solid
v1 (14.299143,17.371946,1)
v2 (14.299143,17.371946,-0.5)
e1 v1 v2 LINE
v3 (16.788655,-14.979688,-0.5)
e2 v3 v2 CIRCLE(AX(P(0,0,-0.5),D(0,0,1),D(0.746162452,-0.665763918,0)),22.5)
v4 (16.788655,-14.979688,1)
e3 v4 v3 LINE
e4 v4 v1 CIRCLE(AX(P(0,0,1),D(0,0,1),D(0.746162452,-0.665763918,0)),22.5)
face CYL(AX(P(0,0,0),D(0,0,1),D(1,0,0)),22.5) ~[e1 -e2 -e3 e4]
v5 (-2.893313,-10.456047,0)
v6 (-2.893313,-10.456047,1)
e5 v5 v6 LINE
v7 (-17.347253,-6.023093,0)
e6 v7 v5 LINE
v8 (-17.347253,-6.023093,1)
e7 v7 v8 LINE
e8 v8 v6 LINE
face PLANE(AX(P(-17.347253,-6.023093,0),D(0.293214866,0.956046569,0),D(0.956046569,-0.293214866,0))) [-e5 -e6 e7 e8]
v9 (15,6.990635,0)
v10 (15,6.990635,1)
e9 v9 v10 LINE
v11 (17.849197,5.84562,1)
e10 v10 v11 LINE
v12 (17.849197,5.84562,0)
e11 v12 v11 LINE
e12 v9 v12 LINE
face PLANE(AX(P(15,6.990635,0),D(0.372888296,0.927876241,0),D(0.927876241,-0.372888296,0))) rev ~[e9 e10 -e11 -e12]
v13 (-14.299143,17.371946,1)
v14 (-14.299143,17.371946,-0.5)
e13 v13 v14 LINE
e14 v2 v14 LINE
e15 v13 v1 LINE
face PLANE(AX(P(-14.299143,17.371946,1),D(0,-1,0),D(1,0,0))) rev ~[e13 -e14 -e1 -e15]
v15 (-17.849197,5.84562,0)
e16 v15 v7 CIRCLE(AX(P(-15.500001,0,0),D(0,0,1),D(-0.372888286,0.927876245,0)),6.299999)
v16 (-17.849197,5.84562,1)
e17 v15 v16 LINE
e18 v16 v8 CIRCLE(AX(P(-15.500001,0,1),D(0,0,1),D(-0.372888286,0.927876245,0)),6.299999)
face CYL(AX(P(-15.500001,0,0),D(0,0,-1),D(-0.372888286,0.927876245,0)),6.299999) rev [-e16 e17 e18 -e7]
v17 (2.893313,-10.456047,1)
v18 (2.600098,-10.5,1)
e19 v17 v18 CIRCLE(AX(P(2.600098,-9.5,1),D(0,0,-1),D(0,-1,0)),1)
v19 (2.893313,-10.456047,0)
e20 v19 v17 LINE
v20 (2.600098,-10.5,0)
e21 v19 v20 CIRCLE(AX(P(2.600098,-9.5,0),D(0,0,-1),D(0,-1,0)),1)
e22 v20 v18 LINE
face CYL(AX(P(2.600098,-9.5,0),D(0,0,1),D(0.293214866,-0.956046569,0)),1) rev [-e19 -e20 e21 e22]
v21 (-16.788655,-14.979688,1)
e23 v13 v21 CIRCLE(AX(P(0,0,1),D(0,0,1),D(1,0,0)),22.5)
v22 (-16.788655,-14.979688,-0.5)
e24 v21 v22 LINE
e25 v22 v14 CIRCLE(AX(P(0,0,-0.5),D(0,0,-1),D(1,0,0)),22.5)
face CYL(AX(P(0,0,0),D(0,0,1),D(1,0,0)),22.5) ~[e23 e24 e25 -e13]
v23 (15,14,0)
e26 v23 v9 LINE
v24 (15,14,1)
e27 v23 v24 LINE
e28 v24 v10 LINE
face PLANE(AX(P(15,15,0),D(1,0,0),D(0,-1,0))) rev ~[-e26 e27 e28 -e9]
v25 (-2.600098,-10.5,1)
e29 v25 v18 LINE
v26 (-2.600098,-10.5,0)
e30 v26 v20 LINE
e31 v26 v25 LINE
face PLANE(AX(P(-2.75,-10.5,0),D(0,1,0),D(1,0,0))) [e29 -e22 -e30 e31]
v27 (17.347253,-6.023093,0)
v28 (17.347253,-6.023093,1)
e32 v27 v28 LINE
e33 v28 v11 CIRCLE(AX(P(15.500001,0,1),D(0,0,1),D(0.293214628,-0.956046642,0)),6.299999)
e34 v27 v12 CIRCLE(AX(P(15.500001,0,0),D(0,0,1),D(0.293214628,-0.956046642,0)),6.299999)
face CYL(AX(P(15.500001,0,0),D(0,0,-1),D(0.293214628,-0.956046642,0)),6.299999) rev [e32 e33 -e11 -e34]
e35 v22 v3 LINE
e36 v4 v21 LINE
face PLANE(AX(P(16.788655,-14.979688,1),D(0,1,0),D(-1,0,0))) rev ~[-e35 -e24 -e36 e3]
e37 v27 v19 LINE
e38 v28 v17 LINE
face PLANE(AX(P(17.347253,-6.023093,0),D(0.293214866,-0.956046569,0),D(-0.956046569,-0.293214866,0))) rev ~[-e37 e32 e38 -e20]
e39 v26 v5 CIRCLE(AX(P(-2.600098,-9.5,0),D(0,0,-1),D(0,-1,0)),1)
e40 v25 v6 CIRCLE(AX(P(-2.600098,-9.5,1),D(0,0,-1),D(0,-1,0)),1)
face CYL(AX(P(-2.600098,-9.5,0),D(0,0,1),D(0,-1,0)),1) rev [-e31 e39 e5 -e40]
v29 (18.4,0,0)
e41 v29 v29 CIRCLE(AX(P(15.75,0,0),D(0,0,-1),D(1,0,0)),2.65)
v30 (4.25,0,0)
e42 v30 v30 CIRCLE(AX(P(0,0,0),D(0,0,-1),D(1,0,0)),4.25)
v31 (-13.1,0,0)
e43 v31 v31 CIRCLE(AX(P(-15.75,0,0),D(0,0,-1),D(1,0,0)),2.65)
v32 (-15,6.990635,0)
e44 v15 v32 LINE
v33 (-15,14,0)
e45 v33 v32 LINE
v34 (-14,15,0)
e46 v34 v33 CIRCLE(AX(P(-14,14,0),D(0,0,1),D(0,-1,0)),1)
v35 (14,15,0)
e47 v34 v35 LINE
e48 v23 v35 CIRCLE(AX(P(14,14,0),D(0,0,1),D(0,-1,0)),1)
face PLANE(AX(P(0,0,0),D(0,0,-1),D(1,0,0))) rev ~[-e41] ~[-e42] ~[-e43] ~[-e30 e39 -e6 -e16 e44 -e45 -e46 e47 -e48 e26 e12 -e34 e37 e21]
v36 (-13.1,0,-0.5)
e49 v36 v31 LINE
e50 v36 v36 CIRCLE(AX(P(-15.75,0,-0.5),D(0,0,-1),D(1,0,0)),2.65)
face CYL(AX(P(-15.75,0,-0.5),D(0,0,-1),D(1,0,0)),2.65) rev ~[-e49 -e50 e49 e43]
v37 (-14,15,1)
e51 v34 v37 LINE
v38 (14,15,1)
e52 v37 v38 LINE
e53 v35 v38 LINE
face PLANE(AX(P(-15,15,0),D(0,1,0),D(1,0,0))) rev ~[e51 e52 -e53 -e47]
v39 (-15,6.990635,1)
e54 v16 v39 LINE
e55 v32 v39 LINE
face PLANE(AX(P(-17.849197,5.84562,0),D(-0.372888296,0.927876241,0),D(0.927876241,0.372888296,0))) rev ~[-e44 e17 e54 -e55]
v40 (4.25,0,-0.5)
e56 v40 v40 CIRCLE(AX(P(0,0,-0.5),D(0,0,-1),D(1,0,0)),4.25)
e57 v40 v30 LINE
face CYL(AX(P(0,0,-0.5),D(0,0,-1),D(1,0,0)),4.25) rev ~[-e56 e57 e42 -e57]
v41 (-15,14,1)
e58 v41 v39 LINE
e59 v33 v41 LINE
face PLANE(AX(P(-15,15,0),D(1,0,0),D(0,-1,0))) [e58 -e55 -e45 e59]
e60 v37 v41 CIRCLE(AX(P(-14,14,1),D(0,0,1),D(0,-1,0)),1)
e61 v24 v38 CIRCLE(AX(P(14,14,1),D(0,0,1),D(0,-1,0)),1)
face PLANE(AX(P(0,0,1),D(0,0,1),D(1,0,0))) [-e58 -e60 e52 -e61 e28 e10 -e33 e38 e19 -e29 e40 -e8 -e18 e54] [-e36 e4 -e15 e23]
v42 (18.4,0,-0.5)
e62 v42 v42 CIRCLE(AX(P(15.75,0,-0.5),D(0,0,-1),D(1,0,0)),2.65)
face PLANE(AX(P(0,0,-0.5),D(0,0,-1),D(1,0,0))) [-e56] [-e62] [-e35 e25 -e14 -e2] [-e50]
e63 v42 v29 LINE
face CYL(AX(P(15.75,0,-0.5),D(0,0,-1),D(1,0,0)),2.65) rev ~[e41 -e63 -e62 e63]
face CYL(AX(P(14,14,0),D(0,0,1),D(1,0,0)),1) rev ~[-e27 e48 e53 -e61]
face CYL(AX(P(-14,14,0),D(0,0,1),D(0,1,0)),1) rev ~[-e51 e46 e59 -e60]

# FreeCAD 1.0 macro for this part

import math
import FreeCAD as App
import Part
import Sketcher

V = App.Vector


def edges_at(feature, points):
    """Names of the edges that pass closest to the given points."""
    edges = feature.Shape.Edges
    near = lambda p: min(range(len(edges)), key=lambda i: edges[i].distToShape(Part.Vertex(*p))[0])
    return sorted({f"Edge{near(p) + 1}" for p in points})

doc = App.newDocument("Part")
body = doc.addObject("PartDesign::Body", "Body")

# Sketch on XY plane
sketch1 = body.newObject("Sketcher::SketchObject", "Sketch")
sketch1.AttachmentSupport = (doc.getObject("XY_Plane"), [""])
sketch1.MapMode = "FlatFace"
sketch1.addGeometry(Part.Circle(V(0, 0, 0), V(0, 0, 1), 22.5), False)
sketch1.addGeometry(Part.ArcOfCircle(Part.Circle(V(15.500001, 0, 0), V(0, 0, 1), 6.299999), math.radians(-72.949491), math.radians(68.106144)), False)
sketch1.addGeometry(Part.LineSegment(V(17.347253, -6.023093, 0), V(2.75, -10.5, 0)), False)
sketch1.addGeometry(Part.LineSegment(V(2.75, -10.5, 0), V(-2.75, -10.5, 0)), False)
sketch1.addGeometry(Part.LineSegment(V(-2.75, -10.5, 0), V(-17.347253, -6.023093, 0)), False)
sketch1.addGeometry(Part.ArcOfCircle(Part.Circle(V(-15.500001, 0, 0), V(0, 0, 1), 6.299999), math.radians(111.893856), math.radians(252.949491)), False)
sketch1.addGeometry(Part.LineSegment(V(-17.849197, 5.84562, 0), V(-15, 6.990635, 0)), False)
sketch1.addGeometry(Part.LineSegment(V(-15, 6.990635, 0), V(-15, 15, 0)), False)
sketch1.addGeometry(Part.LineSegment(V(-15, 15, 0), V(15, 15, 0)), False)
sketch1.addGeometry(Part.LineSegment(V(15, 15, 0), V(15, 6.990635, 0)), False)
sketch1.addGeometry(Part.LineSegment(V(15, 6.990635, 0), V(17.849197, 5.84562, 0)), False)
sketch1.addConstraint(Sketcher.Constraint("Tangent", 1, 1, 2, 1))
sketch1.addConstraint(Sketcher.Constraint("Coincident", 2, 2, 3, 1))
sketch1.addConstraint(Sketcher.Constraint("Coincident", 3, 2, 4, 1))
sketch1.addConstraint(Sketcher.Constraint("Tangent", 4, 2, 5, 2))
sketch1.addConstraint(Sketcher.Constraint("Tangent", 5, 1, 6, 1))
sketch1.addConstraint(Sketcher.Constraint("Coincident", 6, 2, 7, 1))
sketch1.addConstraint(Sketcher.Constraint("Coincident", 7, 2, 8, 1))
sketch1.addConstraint(Sketcher.Constraint("Coincident", 8, 2, 9, 1))
sketch1.addConstraint(Sketcher.Constraint("Coincident", 9, 2, 10, 1))
sketch1.addConstraint(Sketcher.Constraint("Tangent", 10, 2, 1, 2))
sketch1.addConstraint(Sketcher.Constraint("Horizontal", 3))
sketch1.addConstraint(Sketcher.Constraint("Vertical", 7))
sketch1.addConstraint(Sketcher.Constraint("Horizontal", 8))
sketch1.addConstraint(Sketcher.Constraint("Vertical", 9))
sketch1.addConstraint(Sketcher.Constraint("Coincident", 0, 3, -1, 1))
sketch1.addConstraint(Sketcher.Constraint("Equal", 1, 5))
sketch1.addConstraint(Sketcher.Constraint("Symmetric", 1, 3, 5, 3, -1, 1))
sketch1.addConstraint(Sketcher.Constraint("Symmetric", 1, 1, 4, 2, -2))
sketch1.addConstraint(Sketcher.Constraint("Symmetric", 6, 2, 9, 2, -2))
sketch1.addConstraint(Sketcher.Constraint("Diameter", 0, 45.0))
sketch1.addConstraint(Sketcher.Constraint("Radius", 1, 6.299999))
sketch1.addConstraint(Sketcher.Constraint("DistanceX", 8, 1, 8, 2, 30.0))
sketch1.addConstraint(Sketcher.Constraint("DistanceX", 3, 2, 3, 1, 5.5))
sketch1.addConstraint(Sketcher.Constraint("DistanceY", -1, 1, 7, 2, 15.0))
sketch1.addConstraint(Sketcher.Constraint("DistanceX", -1, 1, 1, 3, 15.500001))
sketch1.addConstraint(Sketcher.Constraint("DistanceY", 2, 2, -1, 1, 10.5))
sketch1.addConstraint(Sketcher.Constraint("DistanceY", 7, 1, 7, 2, 8.009365))
pad1 = body.newObject("PartDesign::Pad", "Pad")
pad1.Profile = sketch1
pad1.Length = 1

# Sketch on XY plane
sketch2 = body.newObject("Sketcher::SketchObject", "Sketch001")
sketch2.AttachmentSupport = (doc.getObject("XY_Plane"), [""])
sketch2.MapMode = "FlatFace"
sketch2.addGeometry(Part.Circle(V(0, 0, 0), V(0, 0, 1), 22.5), False)
sketch2.addConstraint(Sketcher.Constraint("Coincident", 0, 3, -1, 1))
sketch2.addConstraint(Sketcher.Constraint("Diameter", 0, 45.0))
pad2 = body.newObject("PartDesign::Pad", "Pad001")
pad2.Profile = sketch2
pad2.Length = 0.5
pad2.Reversed = True

# Sketch on XY plane
sketch3 = body.newObject("Sketcher::SketchObject", "Sketch002")
sketch3.AttachmentSupport = (doc.getObject("XY_Plane"), [""])
sketch3.MapMode = "FlatFace"
sketch3.AttachmentOffset = App.Placement(V(0, 0, -0.5), App.Rotation())
sketch3.addGeometry(Part.Circle(V(0, 0, 0), V(0, 0, 1), 4.25), False)
sketch3.addGeometry(Part.Circle(V(-15.75, 0, 0), V(0, 0, 1), 2.65), False)
sketch3.addGeometry(Part.Circle(V(15.75, 0, 0), V(0, 0, 1), 2.65), False)
sketch3.addConstraint(Sketcher.Constraint("Coincident", 0, 3, -1, 1))
sketch3.addConstraint(Sketcher.Constraint("Equal", 1, 2))
sketch3.addConstraint(Sketcher.Constraint("Symmetric", 1, 3, 2, 3, -1, 1))
sketch3.addConstraint(Sketcher.Constraint("PointOnObject", 1, 3, -1))
sketch3.addConstraint(Sketcher.Constraint("Diameter", 0, 8.5))
sketch3.addConstraint(Sketcher.Constraint("Diameter", 1, 5.3))
sketch3.addConstraint(Sketcher.Constraint("DistanceX", 1, 3, 2, 3, 31.5))
pocket1 = body.newObject("PartDesign::Pocket", "Pocket")
pocket1.Profile = sketch3
pocket1.Type = "ThroughAll"
pocket1.Reversed = True
doc.recompute()

fillet = body.newObject("PartDesign::Fillet", "Fillet")
fillet.Base = (pocket1, edges_at(pocket1, [(15, 15, 0.5), (-15, 15, 0.5)]))
fillet.Radius = 1
doc.recompute()

fillet2 = body.newObject("PartDesign::Fillet", "Fillet001")
fillet2.Base = (fillet, edges_at(fillet, [(-2.75, -10.5, 0.5), (2.75, -10.5, 0.5)]))
fillet2.Radius = 1

# Sketch on XY plane
sketch4 = body.newObject("Sketcher::SketchObject", "Sketch003")
sketch4.AttachmentSupport = (doc.getObject("XY_Plane"), [""])
sketch4.MapMode = "FlatFace"
sketch4.AttachmentOffset = App.Placement(V(0, 0, 1), App.Rotation())
sketch4.addGeometry(Part.LineSegment(V(-14.299143, 17.371946, 0), V(14.299143, 17.371946, 0)), False)
sketch4.addGeometry(Part.ArcOfCircle(Part.Circle(V(0, 0, 0), V(0, 0, 1), 22.5), math.radians(50.541625), math.radians(129.458375)), False)
sketch4.addGeometry(Part.LineSegment(V(16.788655, -14.979688, 0), V(-16.788655, -14.979688, 0)), False)
sketch4.addGeometry(Part.ArcOfCircle(Part.Circle(V(0, -0.000001, 0), V(0, 0, 1), 22.499999), math.radians(-138.259044), math.radians(-41.740956)), False)
sketch4.addConstraint(Sketcher.Constraint("Coincident", 0, 1, 1, 2))
sketch4.addConstraint(Sketcher.Constraint("Coincident", 1, 1, 0, 2))
sketch4.addConstraint(Sketcher.Constraint("Coincident", 2, 1, 3, 2))
sketch4.addConstraint(Sketcher.Constraint("Coincident", 3, 1, 2, 2))
sketch4.addConstraint(Sketcher.Constraint("Horizontal", 0))
sketch4.addConstraint(Sketcher.Constraint("Horizontal", 2))
sketch4.addConstraint(Sketcher.Constraint("Coincident", 1, 3, -1, 1))
sketch4.addConstraint(Sketcher.Constraint("Coincident", 3, 3, -1, 1))
sketch4.addConstraint(Sketcher.Constraint("Equal", 1, 3))
sketch4.addConstraint(Sketcher.Constraint("Radius", 1, 22.5))
sketch4.addConstraint(Sketcher.Constraint("DistanceX", 2, 2, 2, 1, 33.57731))
sketch4.addConstraint(Sketcher.Constraint("DistanceX", 3, 1, 1, 1, 31.087798))
pocket2 = body.newObject("PartDesign::Pocket", "Pocket001")
pocket2.Profile = sketch4
pocket2.Length = 5

doc.recompute()
